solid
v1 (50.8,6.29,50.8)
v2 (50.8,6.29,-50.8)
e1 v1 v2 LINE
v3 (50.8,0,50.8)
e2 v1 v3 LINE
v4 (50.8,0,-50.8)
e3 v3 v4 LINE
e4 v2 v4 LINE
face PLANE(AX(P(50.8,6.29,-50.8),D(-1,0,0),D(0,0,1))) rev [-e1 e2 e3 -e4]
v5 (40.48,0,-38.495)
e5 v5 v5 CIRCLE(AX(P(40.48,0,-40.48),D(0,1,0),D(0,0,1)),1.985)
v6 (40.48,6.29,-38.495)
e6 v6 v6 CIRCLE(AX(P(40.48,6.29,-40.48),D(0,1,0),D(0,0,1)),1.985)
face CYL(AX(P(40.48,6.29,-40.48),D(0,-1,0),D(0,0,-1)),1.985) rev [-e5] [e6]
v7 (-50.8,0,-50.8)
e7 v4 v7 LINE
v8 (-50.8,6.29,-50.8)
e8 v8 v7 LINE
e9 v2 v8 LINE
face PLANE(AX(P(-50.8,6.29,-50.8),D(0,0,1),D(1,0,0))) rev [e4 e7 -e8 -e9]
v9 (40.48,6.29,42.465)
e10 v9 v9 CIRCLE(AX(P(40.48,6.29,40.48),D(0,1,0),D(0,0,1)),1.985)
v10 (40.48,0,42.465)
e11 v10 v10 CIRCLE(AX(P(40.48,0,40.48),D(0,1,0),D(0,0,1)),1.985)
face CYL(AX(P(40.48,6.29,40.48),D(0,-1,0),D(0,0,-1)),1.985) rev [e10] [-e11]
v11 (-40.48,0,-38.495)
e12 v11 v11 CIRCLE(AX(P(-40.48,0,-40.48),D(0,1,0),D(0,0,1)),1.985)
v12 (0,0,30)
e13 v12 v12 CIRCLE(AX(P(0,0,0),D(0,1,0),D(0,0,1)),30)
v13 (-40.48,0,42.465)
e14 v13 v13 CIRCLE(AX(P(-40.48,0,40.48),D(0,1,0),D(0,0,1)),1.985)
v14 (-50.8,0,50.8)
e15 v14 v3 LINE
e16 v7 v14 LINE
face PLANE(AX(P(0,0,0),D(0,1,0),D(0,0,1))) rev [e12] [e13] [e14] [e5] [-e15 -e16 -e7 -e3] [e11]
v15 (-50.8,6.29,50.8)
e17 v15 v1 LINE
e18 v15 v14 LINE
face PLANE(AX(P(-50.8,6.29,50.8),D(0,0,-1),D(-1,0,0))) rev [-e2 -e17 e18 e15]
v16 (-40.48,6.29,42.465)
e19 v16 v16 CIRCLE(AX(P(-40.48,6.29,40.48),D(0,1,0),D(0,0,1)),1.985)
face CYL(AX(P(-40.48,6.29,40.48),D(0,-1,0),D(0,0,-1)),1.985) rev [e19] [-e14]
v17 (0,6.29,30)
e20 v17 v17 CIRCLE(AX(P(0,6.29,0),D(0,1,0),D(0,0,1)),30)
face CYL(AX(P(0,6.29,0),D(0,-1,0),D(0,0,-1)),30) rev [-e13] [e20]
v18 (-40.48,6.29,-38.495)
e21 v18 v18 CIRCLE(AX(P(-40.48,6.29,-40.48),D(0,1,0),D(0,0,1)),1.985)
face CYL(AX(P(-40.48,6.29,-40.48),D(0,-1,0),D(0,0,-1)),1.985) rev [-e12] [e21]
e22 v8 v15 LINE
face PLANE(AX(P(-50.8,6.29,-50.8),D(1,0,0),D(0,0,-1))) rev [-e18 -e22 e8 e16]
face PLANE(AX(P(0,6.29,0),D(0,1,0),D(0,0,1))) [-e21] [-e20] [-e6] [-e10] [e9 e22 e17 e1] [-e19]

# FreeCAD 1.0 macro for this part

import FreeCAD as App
import Part
import Sketcher
from FreeCAD import Vector


def add_polygon(sketch, points):
    """Adds a closed chain of lines whose ends are joined by coincident constraints."""
    first, n = sketch.GeometryCount, len(points)
    for a, b in zip(points, points[1:] + points[:1]):
        sketch.addGeometry(Part.LineSegment(App.Vector(*a, 0), App.Vector(*b, 0)), False)
    for i in range(n):
        sketch.addConstraint(Sketcher.Constraint("Coincident", first + i, 2, first + (i + 1) % n, 1))

doc = App.newDocument("Part")
body = doc.addObject("PartDesign::Body", "Body")

sketch1 = body.newObject("Sketcher::SketchObject", "Sketch")
sketch1.AttachmentSupport = (doc.getObject("XZ_Plane"), [""])
sketch1.MapMode = "FlatFace"
add_polygon(sketch1, [(-50.8, -50.8), (-50.8, 50.8), (50.8, 50.8), (50.8, -50.8)])
sketch1.addGeometry(Part.Circle(Vector(-40.48, 40.48, 0), Vector(0, 0, 1), 1.985), False)
sketch1.addGeometry(Part.Circle(Vector(40.48, 40.48, 0), Vector(0, 0, 1), 1.985), False)
sketch1.addGeometry(Part.Circle(Vector(-40.48, -40.48, 0), Vector(0, 0, 1), 1.985), False)
sketch1.addGeometry(Part.Circle(Vector(0, 0, 0), Vector(0, 0, 1), 30), False)
sketch1.addGeometry(Part.Circle(Vector(40.48, -40.48, 0), Vector(0, 0, 1), 1.985), False)
sketch1.addConstraint([
    Sketcher.Constraint("Vertical", 0),
    Sketcher.Constraint("Horizontal", 1),
    Sketcher.Constraint("Vertical", 2),
    Sketcher.Constraint("Horizontal", 3),
    Sketcher.Constraint("Coincident", 7, 3, -1, 1),
    Sketcher.Constraint("Equal", 4, 5),
    Sketcher.Constraint("Equal", 5, 6),
    Sketcher.Constraint("Equal", 6, 8),
    Sketcher.Constraint("Symmetric", 5, 3, 6, 3, -1, 1),
    Sketcher.Constraint("Symmetric", 4, 3, 8, 3, -1, 1),
    Sketcher.Constraint("Symmetric", 0, 2, 2, 2, -1, 1),
    Sketcher.Constraint("Symmetric", 4, 3, 5, 3, -2),
    Sketcher.Constraint("Equal", 3, 0),
    Sketcher.Constraint("Diameter", 7, 60.0),
    Sketcher.Constraint("Diameter", 4, 3.97),
    Sketcher.Constraint("DistanceX", 1, 1, 1, 2, 101.6),
    Sketcher.Constraint("DistanceX", 4, 3, -1, 1, 40.48),
    Sketcher.Constraint("DistanceY", -1, 1, 4, 3, 40.48),
])
pad1 = body.newObject("PartDesign::Pad", "Pad")
pad1.Profile = sketch1
pad1.Length = 6.29
pad1.Reversed = True

doc.recompute()
